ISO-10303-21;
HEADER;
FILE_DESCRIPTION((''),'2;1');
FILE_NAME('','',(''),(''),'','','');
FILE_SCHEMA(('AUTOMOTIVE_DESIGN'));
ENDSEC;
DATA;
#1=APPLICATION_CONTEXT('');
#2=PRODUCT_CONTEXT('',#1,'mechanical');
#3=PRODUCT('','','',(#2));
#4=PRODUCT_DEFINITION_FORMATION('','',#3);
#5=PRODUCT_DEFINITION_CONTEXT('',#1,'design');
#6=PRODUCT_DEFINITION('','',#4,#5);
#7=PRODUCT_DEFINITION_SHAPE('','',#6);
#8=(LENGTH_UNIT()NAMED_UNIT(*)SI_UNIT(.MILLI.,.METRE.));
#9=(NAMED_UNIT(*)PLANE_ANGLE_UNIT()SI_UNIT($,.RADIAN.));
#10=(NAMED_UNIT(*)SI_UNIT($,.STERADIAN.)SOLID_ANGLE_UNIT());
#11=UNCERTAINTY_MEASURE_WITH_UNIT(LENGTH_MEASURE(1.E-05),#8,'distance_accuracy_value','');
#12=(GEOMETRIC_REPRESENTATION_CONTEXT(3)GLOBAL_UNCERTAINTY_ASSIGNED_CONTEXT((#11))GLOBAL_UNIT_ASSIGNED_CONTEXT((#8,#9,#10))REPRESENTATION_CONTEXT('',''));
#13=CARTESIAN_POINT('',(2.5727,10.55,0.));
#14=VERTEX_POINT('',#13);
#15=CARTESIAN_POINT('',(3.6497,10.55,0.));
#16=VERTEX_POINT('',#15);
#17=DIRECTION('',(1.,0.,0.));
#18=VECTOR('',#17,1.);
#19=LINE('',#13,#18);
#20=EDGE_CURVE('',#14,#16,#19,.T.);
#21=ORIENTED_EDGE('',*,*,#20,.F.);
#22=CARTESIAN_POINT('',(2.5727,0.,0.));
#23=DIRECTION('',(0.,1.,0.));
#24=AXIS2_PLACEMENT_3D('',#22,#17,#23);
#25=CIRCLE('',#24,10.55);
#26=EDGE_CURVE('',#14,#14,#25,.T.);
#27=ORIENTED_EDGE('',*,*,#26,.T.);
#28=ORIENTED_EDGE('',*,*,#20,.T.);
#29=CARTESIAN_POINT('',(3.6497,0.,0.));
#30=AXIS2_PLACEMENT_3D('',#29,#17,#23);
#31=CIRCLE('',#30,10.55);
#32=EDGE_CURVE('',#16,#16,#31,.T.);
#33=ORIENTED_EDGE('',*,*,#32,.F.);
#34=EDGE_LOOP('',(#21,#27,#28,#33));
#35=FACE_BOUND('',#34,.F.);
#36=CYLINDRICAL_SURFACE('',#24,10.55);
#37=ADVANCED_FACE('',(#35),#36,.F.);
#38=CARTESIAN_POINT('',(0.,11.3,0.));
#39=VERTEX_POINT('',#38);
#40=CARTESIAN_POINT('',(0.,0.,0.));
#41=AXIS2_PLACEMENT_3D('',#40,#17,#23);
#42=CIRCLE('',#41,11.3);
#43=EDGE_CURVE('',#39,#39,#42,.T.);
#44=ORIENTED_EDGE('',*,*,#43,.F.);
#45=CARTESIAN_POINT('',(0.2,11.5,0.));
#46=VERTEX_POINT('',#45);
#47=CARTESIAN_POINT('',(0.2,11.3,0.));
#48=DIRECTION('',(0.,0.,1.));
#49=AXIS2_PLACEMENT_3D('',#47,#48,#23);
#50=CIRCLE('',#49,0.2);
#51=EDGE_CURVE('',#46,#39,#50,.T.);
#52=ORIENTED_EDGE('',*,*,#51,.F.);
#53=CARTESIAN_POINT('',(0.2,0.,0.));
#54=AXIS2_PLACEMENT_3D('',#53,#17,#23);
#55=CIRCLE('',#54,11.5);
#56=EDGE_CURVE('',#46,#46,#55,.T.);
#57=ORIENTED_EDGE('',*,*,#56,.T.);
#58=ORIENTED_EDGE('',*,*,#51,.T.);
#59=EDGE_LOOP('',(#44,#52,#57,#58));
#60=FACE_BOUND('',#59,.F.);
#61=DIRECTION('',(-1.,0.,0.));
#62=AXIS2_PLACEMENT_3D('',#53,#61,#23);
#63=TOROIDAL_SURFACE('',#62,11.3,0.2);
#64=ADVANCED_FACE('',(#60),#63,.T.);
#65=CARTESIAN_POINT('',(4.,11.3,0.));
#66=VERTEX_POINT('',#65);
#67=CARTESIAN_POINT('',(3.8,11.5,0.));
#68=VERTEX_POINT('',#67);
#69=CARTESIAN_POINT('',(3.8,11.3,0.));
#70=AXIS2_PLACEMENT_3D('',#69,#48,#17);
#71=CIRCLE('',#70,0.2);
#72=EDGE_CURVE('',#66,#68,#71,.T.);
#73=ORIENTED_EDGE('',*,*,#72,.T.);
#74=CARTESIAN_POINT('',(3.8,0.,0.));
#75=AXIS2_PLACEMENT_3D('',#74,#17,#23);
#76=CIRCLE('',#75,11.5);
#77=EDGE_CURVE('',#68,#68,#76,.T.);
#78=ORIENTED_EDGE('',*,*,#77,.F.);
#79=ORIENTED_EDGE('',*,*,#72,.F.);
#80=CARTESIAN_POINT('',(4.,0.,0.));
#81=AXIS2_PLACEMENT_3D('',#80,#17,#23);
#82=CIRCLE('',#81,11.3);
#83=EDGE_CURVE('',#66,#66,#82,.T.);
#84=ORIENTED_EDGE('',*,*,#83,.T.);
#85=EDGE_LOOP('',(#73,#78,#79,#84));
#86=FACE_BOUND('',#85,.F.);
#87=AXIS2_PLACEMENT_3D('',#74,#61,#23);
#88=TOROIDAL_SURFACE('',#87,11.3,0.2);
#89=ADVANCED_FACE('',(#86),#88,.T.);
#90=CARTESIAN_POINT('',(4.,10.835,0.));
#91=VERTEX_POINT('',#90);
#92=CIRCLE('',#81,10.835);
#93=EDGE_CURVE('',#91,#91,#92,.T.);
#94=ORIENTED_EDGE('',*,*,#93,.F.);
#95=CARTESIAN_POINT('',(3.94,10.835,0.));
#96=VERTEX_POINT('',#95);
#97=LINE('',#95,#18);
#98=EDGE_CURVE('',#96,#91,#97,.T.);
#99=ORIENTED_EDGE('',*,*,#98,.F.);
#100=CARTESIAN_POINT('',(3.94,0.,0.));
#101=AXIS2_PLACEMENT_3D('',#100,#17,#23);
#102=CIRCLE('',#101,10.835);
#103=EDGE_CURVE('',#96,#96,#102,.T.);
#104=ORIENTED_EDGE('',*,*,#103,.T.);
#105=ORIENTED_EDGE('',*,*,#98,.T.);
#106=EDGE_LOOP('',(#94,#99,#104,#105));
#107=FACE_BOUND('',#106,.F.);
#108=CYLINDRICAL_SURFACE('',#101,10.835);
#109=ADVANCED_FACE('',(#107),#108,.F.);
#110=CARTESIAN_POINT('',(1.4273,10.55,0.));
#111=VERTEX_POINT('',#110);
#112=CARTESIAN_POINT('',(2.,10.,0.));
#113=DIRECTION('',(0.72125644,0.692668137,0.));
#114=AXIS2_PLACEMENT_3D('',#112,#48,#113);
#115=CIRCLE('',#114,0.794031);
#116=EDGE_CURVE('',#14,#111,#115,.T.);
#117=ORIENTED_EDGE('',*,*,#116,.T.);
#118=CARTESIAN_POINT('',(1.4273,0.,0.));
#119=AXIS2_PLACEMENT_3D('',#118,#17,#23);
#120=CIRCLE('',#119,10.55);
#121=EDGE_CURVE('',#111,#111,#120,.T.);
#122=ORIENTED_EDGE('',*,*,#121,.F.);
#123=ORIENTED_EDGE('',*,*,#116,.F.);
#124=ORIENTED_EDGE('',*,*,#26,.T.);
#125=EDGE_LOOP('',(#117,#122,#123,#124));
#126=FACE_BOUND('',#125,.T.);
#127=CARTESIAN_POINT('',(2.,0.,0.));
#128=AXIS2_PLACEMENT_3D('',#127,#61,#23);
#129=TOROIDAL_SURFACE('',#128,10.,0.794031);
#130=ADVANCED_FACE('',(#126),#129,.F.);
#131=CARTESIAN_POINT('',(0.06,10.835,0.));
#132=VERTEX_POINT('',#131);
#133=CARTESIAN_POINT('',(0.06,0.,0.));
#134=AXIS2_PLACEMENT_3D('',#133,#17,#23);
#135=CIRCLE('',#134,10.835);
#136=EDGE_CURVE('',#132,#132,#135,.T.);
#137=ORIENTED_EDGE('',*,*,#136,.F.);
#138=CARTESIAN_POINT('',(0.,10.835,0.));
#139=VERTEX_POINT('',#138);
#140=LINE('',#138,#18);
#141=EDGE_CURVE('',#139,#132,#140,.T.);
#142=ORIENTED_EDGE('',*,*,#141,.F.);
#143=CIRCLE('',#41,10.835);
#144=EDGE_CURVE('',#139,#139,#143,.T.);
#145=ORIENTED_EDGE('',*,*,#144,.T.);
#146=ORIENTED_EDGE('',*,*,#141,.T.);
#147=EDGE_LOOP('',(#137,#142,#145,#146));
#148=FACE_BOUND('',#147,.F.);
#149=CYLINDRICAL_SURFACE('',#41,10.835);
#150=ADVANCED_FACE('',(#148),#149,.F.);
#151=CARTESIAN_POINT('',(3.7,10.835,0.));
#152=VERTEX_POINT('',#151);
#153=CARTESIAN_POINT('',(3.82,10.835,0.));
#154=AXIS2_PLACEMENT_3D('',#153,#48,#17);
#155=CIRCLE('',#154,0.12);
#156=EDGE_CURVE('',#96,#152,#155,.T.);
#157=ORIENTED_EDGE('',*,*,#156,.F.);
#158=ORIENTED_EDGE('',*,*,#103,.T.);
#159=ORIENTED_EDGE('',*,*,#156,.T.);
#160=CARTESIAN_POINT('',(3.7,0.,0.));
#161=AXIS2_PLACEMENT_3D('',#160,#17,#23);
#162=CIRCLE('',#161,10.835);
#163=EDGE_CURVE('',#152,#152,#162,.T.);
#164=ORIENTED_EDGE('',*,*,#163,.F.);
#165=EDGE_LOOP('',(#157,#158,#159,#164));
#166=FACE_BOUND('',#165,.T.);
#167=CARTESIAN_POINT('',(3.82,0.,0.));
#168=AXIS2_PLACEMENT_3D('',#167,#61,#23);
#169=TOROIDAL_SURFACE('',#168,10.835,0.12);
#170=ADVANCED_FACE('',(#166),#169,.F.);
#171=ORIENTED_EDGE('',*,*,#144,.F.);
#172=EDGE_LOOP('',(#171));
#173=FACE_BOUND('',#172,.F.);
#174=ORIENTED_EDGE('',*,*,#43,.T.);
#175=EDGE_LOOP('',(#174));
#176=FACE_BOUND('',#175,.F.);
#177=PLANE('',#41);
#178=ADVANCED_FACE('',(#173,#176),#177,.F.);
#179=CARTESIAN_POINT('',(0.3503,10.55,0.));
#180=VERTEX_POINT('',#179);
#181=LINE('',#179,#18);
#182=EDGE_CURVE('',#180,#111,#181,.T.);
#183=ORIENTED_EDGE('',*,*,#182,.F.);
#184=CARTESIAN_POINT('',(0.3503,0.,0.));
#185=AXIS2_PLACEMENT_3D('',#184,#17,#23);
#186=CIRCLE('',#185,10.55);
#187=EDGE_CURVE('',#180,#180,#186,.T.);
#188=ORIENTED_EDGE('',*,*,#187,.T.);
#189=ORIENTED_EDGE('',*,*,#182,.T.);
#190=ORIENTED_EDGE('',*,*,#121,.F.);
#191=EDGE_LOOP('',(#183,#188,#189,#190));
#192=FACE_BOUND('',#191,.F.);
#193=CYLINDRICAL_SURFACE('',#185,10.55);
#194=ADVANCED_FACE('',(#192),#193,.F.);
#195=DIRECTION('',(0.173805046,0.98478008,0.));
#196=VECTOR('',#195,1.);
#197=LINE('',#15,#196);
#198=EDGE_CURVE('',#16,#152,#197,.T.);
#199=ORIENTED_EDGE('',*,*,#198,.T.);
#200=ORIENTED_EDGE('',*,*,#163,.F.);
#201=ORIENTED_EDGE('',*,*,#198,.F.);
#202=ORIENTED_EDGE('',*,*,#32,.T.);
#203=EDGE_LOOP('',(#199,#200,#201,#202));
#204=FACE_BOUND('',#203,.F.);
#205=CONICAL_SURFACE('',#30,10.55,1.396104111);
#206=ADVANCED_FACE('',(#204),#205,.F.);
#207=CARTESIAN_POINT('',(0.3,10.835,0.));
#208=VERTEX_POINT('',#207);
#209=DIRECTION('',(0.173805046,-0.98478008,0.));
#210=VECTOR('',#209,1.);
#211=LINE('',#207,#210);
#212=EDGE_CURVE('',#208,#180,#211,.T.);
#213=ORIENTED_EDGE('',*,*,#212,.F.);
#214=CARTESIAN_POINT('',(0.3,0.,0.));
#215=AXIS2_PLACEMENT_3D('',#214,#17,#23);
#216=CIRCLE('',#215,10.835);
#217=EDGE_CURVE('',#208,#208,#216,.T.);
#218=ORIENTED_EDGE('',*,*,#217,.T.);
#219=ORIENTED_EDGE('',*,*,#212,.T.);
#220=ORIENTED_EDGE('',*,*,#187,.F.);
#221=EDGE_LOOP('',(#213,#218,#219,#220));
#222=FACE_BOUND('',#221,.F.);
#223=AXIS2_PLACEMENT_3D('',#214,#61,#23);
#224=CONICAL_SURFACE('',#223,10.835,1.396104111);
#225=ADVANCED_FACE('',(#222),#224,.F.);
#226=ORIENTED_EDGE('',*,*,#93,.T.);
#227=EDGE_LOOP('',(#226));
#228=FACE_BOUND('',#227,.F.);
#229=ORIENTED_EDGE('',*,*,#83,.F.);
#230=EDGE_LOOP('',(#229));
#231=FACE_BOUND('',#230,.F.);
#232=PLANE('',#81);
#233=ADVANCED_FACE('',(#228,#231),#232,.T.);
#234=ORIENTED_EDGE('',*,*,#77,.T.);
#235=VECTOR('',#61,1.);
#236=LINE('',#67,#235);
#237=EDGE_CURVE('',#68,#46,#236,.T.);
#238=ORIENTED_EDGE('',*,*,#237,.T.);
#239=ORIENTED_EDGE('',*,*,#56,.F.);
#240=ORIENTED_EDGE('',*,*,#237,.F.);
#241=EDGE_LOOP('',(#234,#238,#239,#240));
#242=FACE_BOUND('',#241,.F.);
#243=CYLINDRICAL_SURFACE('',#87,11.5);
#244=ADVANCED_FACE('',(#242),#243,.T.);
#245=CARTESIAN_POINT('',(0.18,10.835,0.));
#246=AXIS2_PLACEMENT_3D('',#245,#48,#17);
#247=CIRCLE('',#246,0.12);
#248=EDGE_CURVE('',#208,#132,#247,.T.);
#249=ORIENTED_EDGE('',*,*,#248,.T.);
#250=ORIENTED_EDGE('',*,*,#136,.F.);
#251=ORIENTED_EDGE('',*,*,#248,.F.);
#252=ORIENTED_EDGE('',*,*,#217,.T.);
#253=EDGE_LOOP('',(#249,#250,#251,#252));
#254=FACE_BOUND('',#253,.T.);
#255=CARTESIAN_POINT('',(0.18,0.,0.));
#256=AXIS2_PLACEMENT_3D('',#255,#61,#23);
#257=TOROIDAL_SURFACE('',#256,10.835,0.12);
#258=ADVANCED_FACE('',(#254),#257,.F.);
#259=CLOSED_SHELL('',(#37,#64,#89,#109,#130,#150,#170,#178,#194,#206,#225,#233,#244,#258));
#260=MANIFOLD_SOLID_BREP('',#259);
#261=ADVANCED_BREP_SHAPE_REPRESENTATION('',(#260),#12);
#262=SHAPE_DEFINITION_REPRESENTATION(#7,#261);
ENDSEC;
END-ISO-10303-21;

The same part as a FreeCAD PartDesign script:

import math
import FreeCAD as App
import Part
import Sketcher
Q = App.Units.Quantity

doc = App.newDocument("Part")
body = doc.addObject("PartDesign::Body", "Body")

sketch1 = body.newObject("Sketcher::SketchObject", "Sketch")
sketch1.AttachmentSupport = (doc.getObject("XY_Plane"), [""])
sketch1.MapMode = "FlatFace"
sketch1.addGeometry([
    Part.LineSegment(App.Vector(0, 11.3, 0), App.Vector(0, 10.835, 0)),
    Part.LineSegment(App.Vector(0, 10.835, 0), App.Vector(0.06, 10.835, 0)),
    Part.ArcOfCircle(Part.Circle(App.Vector(0.18, 10.835, 0), App.Vector(0, 0, 1), 0.12), math.radians(0), math.radians(180)),
    Part.LineSegment(App.Vector(0.3, 10.835, 0), App.Vector(0.3503, 10.55, 0)),
    Part.LineSegment(App.Vector(0.3503, 10.55, 0), App.Vector(1.4273, 10.55, 0)),
    Part.ArcOfCircle(Part.Circle(App.Vector(2, 10, 0), App.Vector(0, 0, 1), 0.794031), math.radians(43.841688), math.radians(136.158312)),
    Part.LineSegment(App.Vector(2.5727, 10.55, 0), App.Vector(3.6497, 10.55, 0)),
    Part.LineSegment(App.Vector(3.6497, 10.55, 0), App.Vector(3.7, 10.835, 0)),
    Part.ArcOfCircle(Part.Circle(App.Vector(3.82, 10.835, 0), App.Vector(0, 0, 1), 0.12), math.radians(0), math.radians(180)),
    Part.LineSegment(App.Vector(3.94, 10.835, 0), App.Vector(4, 10.835, 0)),
    Part.LineSegment(App.Vector(4, 10.835, 0), App.Vector(4, 11.3, 0)),
    Part.ArcOfCircle(Part.Circle(App.Vector(3.8, 11.3, 0), App.Vector(0, 0, 1), 0.2), math.radians(0), math.radians(90)),
    Part.LineSegment(App.Vector(3.8, 11.5, 0), App.Vector(0.2, 11.5, 0)),
    Part.ArcOfCircle(Part.Circle(App.Vector(0.2, 11.3, 0), App.Vector(0, 0, 1), 0.2), math.radians(90), math.radians(180)),
], False)
sketch1.addConstraint([
    Sketcher.Constraint("Coincident", 0, 2, 1, 1),
    Sketcher.Constraint("Coincident", 1, 2, 2, 2),
    Sketcher.Constraint("Coincident", 2, 1, 3, 1),
    Sketcher.Constraint("Coincident", 3, 2, 4, 1),
    Sketcher.Constraint("Coincident", 4, 2, 5, 2),
    Sketcher.Constraint("Coincident", 5, 1, 6, 1),
    Sketcher.Constraint("Coincident", 6, 2, 7, 1),
    Sketcher.Constraint("Coincident", 7, 2, 8, 2),
    Sketcher.Constraint("Coincident", 8, 1, 9, 1),
    Sketcher.Constraint("Coincident", 9, 2, 10, 1),
    Sketcher.Constraint("Tangent", 10, 2, 11, 1),
    Sketcher.Constraint("Tangent", 11, 2, 12, 1),
    Sketcher.Constraint("Tangent", 12, 2, 13, 1),
    Sketcher.Constraint("Tangent", 13, 2, 0, 1),
    Sketcher.Constraint("Vertical", 0),
    Sketcher.Constraint("Horizontal", 1),
    Sketcher.Constraint("Horizontal", 4),
    Sketcher.Constraint("Horizontal", 6),
    Sketcher.Constraint("Horizontal", 9),
    Sketcher.Constraint("Vertical", 10),
    Sketcher.Constraint("Horizontal", 12),
    Sketcher.Constraint("Equal", 2, 8),
    Sketcher.Constraint("Equal", 11, 13),
    Sketcher.Constraint("PointOnObject", 0, 2, -2),
    Sketcher.Constraint("Horizontal", 2, 3, 8, 3),
    Sketcher.Constraint("Horizontal", 8, 3, 0, 2),
    Sketcher.Constraint("Horizontal", 1, 2, 2, 1),
    Sketcher.Constraint("Horizontal", 4, 2, 5, 1),
    Sketcher.Constraint("Horizontal", 2, 1, 7, 2),
    Sketcher.Constraint("Horizontal", 7, 2, 8, 1),
    Sketcher.Constraint("Equal", 4, 6),
    Sketcher.Constraint("Equal", 1, 9),
    Sketcher.Constraint("Equal", 3, 7),
    Sketcher.Constraint("Radius", 11, 0.2),
    Sketcher.Constraint("Radius", 2, 0.12),
    Sketcher.Constraint("DistanceX", 12, 2, 12, 1, 3.6),
    Sketcher.Constraint("DistanceY", -1, 1, 5, 3, 10.0),
    Sketcher.Constraint("Radius", 5, 0.794),
    Sketcher.Constraint("DistanceX", 1, 1, 1, 2, 0.06),
    Sketcher.Constraint("DistanceY", -1, 1, 11, 3, 11.3),
    Sketcher.Constraint("Angle", 3, Q("-79.9909 deg")),
    Sketcher.Constraint("DistanceX", 4, 1, 4, 2, 1.077),
    Sketcher.Constraint("DistanceY", 0, 2, 0, 1, 0.465),
])
revolution = body.newObject("PartDesign::Revolution", "Revolution")
revolution.Profile = sketch1
revolution.ReferenceAxis = (sketch1, ["H_Axis"])
revolution.Angle = 360

doc.recompute()
